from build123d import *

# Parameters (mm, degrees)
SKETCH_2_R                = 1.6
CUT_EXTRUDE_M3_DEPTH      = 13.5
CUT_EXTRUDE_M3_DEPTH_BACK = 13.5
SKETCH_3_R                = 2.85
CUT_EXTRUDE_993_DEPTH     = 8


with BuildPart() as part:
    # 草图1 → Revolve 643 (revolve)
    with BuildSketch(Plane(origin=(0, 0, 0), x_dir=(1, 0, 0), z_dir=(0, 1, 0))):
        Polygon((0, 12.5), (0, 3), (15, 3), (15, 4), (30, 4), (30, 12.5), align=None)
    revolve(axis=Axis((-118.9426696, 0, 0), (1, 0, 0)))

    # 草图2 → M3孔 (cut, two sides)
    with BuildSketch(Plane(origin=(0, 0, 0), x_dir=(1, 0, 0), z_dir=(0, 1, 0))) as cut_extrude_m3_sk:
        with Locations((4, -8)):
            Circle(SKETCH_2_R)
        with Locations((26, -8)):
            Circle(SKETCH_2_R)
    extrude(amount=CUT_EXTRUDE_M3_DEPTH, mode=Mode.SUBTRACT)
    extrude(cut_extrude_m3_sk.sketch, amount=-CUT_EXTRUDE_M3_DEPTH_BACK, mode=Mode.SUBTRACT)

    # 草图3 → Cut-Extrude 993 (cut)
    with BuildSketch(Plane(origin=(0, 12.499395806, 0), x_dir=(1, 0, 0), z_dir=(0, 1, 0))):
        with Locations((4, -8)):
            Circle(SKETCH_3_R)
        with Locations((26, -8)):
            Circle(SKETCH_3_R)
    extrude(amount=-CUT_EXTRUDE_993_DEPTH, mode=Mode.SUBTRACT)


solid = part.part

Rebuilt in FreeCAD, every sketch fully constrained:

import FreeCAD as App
import Part
import Sketcher
from FreeCAD import Vector
Q = App.Units.Quantity

doc = App.newDocument("Part")
body = doc.addObject("PartDesign::Body", "Body")

sketch1 = doc.addObject("Sketcher::SketchObject", "Sketch")
body.addObject(sketch1)
sketch1.AttachmentSupport = (doc.XZ_Plane, [""])
sketch1.MapMode = "FlatFace"
sketch1.addGeometry([
    Part.LineSegment(Vector(0, -12.5, 0), Vector(0, -3, 0)),
    Part.LineSegment(Vector(0, -3, 0), Vector(15, -3, 0)),
    Part.LineSegment(Vector(15, -3, 0), Vector(15, -4, 0)),
    Part.LineSegment(Vector(15, -4, 0), Vector(30, -4, 0)),
    Part.LineSegment(Vector(30, -4, 0), Vector(30, -12.5, 0)),
    Part.LineSegment(Vector(30, -12.5, 0), Vector(0, -12.5, 0)),
], False)
sketch1.addConstraint([
    Sketcher.Constraint("Coincident", 0, 2, 1, 1),
    Sketcher.Constraint("Coincident", 1, 2, 2, 1),
    Sketcher.Constraint("Coincident", 2, 2, 3, 1),
    Sketcher.Constraint("Coincident", 3, 2, 4, 1),
    Sketcher.Constraint("Coincident", 4, 2, 5, 1),
    Sketcher.Constraint("Coincident", 5, 2, 0, 1),
    Sketcher.Constraint("Vertical", 0),
    Sketcher.Constraint("Horizontal", 1),
    Sketcher.Constraint("Vertical", 2),
    Sketcher.Constraint("Horizontal", 3),
    Sketcher.Constraint("Vertical", 4),
    Sketcher.Constraint("Horizontal", 5),
    Sketcher.Constraint("PointOnObject", 0, 2, -2),
    Sketcher.Constraint("Equal", 1, 3),
    Sketcher.Constraint("DistanceX", 1, 1, 1, 2, Q("15 mm")),
    Sketcher.Constraint("DistanceY", 2, 2, 2, 1, Q("1 mm")),
    Sketcher.Constraint("DistanceY", 0, 1, 0, 2, Q("9.5 mm")),
    Sketcher.Constraint("DistanceY", 0, 2, -1, 1, Q("3 mm")),
])
revolution = doc.addObject("PartDesign::Revolution", "Revolution")
body.addObject(revolution)
revolution.Profile = sketch1
revolution.ReferenceAxis = (sketch1, ["H_Axis"])
revolution.Angle = 360

sketch2 = doc.addObject("Sketcher::SketchObject", "Sketch001")
body.addObject(sketch2)
sketch2.AttachmentSupport = (doc.XZ_Plane, [""])
sketch2.MapMode = "FlatFace"
sketch2.addGeometry([
    Part.Circle(Vector(4, 8, 0), Vector(0, 0, 1), 1.6),
    Part.Circle(Vector(26, 8, 0), Vector(0, 0, 1), 1.6),
], False)
sketch2.addConstraint([
    Sketcher.Constraint("Equal", 0, 1),
    Sketcher.Constraint("Horizontal", 0, 3, 1, 3),
    Sketcher.Constraint("Diameter", 0, Q("3.2 mm")),
    Sketcher.Constraint("DistanceX", -1, 1, 0, 3, Q("4 mm")),
    Sketcher.Constraint("DistanceY", -1, 1, 0, 3, Q("8 mm")),
    Sketcher.Constraint("DistanceX", -1, 1, 1, 3, Q("26 mm")),
])
pocket1 = doc.addObject("PartDesign::Pocket", "Pocket")
body.addObject(pocket1)
pocket1.Profile = sketch2
pocket1.Type = "ThroughAll"
pocket1.Midplane = True

sketch3 = doc.addObject("Sketcher::SketchObject", "Sketch002")
body.addObject(sketch3)
sketch3.AttachmentSupport = (doc.XZ_Plane, [""])
sketch3.MapMode = "FlatFace"
sketch3.AttachmentOffset = App.Placement(Vector(0, 0, -12.499396), App.Rotation())
sketch3.addGeometry([
    Part.Circle(Vector(4, 8, 0), Vector(0, 0, 1), 2.9),
    Part.Circle(Vector(26, 8, 0), Vector(0, 0, 1), 2.9),
], False)
sketch3.addConstraint([
    Sketcher.Constraint("Equal", 0, 1),
    Sketcher.Constraint("Horizontal", 0, 3, 1, 3),
    Sketcher.Constraint("Diameter", 0, Q("5.7 mm")),
    Sketcher.Constraint("DistanceX", -1, 1, 0, 3, Q("4 mm")),
    Sketcher.Constraint("DistanceY", -1, 1, 0, 3, Q("8 mm")),
    Sketcher.Constraint("DistanceX", -1, 1, 1, 3, Q("26 mm")),
])
pocket2 = doc.addObject("PartDesign::Pocket", "Pocket001")
body.addObject(pocket2)
pocket2.Profile = sketch3
pocket2.Length = 8
pocket2.Reversed = True

doc.recompute()
